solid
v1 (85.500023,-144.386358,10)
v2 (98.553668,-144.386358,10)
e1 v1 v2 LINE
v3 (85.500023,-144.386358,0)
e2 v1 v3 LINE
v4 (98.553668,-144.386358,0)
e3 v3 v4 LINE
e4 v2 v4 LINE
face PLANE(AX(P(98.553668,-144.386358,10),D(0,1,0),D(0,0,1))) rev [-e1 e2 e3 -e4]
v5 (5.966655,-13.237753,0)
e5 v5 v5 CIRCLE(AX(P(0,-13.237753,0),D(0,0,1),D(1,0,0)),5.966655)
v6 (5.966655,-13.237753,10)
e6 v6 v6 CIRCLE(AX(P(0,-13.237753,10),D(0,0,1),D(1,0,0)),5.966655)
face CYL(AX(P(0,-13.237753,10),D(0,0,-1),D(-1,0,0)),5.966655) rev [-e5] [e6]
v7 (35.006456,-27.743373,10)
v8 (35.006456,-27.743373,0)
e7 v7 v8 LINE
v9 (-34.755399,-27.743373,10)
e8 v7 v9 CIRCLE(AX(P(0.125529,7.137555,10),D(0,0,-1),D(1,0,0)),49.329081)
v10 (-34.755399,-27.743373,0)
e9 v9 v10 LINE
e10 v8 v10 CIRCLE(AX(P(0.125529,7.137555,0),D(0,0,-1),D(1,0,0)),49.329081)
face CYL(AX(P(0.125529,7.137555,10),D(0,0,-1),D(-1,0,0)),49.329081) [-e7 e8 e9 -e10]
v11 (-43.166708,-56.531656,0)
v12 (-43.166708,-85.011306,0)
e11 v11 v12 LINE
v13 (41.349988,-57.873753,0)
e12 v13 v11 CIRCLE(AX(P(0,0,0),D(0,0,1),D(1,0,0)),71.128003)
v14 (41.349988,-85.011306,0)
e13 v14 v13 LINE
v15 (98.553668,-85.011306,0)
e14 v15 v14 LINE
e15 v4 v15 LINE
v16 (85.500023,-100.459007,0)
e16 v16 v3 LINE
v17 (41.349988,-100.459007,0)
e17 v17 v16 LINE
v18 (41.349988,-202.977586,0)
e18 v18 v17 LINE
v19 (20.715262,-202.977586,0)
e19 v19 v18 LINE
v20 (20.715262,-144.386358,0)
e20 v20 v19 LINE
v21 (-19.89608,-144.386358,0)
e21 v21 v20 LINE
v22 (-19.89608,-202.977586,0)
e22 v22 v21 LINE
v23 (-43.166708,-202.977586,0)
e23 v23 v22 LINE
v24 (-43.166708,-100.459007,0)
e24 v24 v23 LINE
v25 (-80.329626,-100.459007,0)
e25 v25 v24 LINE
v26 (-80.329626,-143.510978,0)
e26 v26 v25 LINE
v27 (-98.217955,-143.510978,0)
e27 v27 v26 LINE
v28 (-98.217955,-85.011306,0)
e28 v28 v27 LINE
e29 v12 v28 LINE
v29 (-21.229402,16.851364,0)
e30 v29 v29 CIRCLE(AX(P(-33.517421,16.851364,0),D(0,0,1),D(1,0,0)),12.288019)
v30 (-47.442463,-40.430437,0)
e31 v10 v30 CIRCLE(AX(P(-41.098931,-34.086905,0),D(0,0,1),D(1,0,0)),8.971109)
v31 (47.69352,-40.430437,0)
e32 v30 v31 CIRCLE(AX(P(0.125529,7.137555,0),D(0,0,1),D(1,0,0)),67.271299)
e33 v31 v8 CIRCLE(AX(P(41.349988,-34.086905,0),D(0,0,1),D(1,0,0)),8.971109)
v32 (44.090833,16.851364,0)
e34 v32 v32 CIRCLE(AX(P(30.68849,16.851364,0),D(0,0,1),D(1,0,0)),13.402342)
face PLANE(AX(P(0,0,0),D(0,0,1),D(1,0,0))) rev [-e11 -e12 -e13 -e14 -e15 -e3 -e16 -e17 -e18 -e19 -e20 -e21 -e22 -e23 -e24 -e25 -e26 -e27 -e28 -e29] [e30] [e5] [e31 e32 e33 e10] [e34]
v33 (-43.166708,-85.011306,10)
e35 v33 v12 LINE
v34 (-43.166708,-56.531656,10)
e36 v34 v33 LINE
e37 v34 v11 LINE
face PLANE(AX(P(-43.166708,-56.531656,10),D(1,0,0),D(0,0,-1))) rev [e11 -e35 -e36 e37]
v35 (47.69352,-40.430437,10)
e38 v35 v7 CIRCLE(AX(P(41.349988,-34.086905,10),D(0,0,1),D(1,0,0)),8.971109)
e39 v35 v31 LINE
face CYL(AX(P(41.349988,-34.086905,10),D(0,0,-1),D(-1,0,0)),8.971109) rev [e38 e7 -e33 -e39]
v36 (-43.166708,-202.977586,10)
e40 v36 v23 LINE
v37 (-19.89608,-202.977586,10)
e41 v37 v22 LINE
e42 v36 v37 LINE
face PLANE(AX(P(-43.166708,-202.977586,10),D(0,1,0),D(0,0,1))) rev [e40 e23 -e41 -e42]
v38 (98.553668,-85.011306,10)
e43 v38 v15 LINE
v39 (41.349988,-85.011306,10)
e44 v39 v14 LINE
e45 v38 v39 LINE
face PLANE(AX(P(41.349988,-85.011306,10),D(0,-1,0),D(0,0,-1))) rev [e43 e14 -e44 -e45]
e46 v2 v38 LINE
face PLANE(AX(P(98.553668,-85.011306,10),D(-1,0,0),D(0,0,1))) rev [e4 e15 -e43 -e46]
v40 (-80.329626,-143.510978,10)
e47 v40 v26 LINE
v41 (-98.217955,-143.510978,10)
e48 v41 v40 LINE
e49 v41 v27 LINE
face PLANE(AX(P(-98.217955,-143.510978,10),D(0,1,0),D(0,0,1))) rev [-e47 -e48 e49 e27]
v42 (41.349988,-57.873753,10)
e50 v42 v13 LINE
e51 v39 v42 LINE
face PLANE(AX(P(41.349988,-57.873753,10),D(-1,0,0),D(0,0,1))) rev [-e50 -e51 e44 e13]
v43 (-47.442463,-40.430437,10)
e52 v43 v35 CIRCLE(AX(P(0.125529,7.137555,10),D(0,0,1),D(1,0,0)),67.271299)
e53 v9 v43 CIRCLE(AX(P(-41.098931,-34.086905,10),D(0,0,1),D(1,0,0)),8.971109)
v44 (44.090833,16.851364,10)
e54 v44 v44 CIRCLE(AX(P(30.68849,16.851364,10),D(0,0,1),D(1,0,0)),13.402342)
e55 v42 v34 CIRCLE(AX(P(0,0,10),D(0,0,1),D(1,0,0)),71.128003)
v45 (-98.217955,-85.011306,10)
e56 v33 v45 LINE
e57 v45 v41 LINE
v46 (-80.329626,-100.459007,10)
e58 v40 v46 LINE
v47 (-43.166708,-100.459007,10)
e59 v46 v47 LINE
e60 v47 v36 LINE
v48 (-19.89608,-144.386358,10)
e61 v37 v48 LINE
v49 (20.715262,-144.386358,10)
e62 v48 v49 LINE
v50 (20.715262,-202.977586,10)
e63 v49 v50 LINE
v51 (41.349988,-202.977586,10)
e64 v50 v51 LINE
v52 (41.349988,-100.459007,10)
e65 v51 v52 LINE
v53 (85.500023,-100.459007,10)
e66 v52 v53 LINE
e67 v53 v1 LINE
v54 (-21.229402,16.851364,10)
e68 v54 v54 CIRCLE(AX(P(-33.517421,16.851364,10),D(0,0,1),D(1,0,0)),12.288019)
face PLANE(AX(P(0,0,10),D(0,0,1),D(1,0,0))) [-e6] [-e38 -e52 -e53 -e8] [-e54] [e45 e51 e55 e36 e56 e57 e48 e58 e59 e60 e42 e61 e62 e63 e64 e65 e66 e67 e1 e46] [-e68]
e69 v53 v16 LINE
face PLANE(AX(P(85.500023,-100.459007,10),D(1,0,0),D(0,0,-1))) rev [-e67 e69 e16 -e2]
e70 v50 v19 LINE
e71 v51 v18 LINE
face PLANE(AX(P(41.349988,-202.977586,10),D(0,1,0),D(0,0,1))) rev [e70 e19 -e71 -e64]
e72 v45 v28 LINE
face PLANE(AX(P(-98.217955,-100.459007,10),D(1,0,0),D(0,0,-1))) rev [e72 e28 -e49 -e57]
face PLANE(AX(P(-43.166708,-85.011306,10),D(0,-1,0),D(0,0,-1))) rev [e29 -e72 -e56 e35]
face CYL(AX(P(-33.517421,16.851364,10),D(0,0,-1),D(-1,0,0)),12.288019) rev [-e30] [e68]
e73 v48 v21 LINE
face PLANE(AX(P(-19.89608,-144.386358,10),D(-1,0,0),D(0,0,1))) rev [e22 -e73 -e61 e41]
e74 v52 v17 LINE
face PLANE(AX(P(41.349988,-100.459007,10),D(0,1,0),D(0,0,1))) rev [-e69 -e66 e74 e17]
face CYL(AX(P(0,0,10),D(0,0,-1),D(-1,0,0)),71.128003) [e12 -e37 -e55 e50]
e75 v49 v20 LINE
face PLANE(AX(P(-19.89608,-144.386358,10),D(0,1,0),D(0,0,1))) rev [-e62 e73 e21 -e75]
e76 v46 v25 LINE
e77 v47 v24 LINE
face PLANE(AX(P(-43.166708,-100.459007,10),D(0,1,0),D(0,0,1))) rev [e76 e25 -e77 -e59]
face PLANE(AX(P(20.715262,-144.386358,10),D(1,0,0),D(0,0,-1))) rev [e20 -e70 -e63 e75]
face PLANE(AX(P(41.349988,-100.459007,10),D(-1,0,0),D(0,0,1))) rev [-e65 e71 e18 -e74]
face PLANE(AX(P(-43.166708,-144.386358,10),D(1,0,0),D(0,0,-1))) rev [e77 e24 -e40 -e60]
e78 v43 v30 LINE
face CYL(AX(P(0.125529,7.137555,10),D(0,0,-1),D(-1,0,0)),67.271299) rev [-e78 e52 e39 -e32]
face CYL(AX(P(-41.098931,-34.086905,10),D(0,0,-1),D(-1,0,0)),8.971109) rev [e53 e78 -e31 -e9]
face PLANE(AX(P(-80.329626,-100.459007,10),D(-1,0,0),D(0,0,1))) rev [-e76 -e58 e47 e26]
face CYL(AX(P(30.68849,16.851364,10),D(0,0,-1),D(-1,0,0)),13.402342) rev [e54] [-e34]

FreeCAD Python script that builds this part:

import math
import FreeCAD as App
import Part
import Sketcher
from FreeCAD import Vector
Q = App.Units.Quantity

doc = App.newDocument("Part")
body = doc.addObject("PartDesign::Body", "Body")

sketch1 = body.newObject("Sketcher::SketchObject", "Sketch")
sketch1.AttachmentSupport = (doc.getObject("XY_Plane"), [""])
sketch1.MapMode = "FlatFace"
sketch1.addGeometry([
    Part.LineSegment(Vector(-43, -100, 0), Vector(-43, -203, 0)),
    Part.LineSegment(Vector(-43, -203, 0), Vector(-20, -203, 0)),
    Part.LineSegment(Vector(-20, -203, 0), Vector(-20, -144, 0)),
    Part.LineSegment(Vector(-20, -144, 0), Vector(21, -144, 0)),
    Part.LineSegment(Vector(21, -144, 0), Vector(21, -203, 0)),
    Part.LineSegment(Vector(21, -203, 0), Vector(41, -203, 0)),
    Part.LineSegment(Vector(41, -203, 0), Vector(41, -100, 0)),
    Part.LineSegment(Vector(41, -100, 0), Vector(86, -100, 0)),
    Part.LineSegment(Vector(86, -100, 0), Vector(86, -144, 0)),
    Part.LineSegment(Vector(86, -144, 0), Vector(99, -144, 0)),
    Part.LineSegment(Vector(99, -144, 0), Vector(99, -85, 0)),
    Part.LineSegment(Vector(99, -85, 0), Vector(41, -85, 0)),
    Part.LineSegment(Vector(41, -85, 0), Vector(41, -58, 0)),
    Part.ArcOfCircle(Part.Circle(Vector(0, 0, 0), Vector(0, 0, 1), 71), math.radians(-54), math.radians(233)),
    Part.LineSegment(Vector(-43, -57, 0), Vector(-43, -85, 0)),
    Part.LineSegment(Vector(-43, -85, 0), Vector(-98, -85, 0)),
    Part.LineSegment(Vector(-98, -85, 0), Vector(-98, -144, 0)),
    Part.LineSegment(Vector(-98, -144, 0), Vector(-80, -144, 0)),
    Part.LineSegment(Vector(-80, -144, 0), Vector(-80, -100, 0)),
    Part.LineSegment(Vector(-80, -100, 0), Vector(-43, -100, 0)),
    Part.ArcOfCircle(Part.Circle(Vector(0, 7, 0), Vector(0, 0, 1), 67), math.radians(-135), math.radians(-45)),
    Part.ArcOfCircle(Part.Circle(Vector(-41, -34, 0), Vector(0, 0, 1), 9), math.radians(45), math.radians(225)),
    Part.ArcOfCircle(Part.Circle(Vector(0, 7, 0), Vector(0, 0, 1), 49), math.radians(-135), math.radians(-45)),
    Part.ArcOfCircle(Part.Circle(Vector(41, -34, 0), Vector(0, 0, 1), 9), math.radians(-45), math.radians(135)),
    Part.Circle(Vector(0, -13, 0), Vector(0, 0, 1), 6),
    Part.Circle(Vector(-34, 17, 0), Vector(0, 0, 1), 12),
    Part.Circle(Vector(31, 17, 0), Vector(0, 0, 1), 13),
], False)
sketch1.addConstraint([
    Sketcher.Constraint("Coincident", 0, 2, 1, 1),
    Sketcher.Constraint("Coincident", 1, 2, 2, 1),
    Sketcher.Constraint("Coincident", 2, 2, 3, 1),
    Sketcher.Constraint("Coincident", 3, 2, 4, 1),
    Sketcher.Constraint("Coincident", 4, 2, 5, 1),
    Sketcher.Constraint("Coincident", 5, 2, 6, 1),
    Sketcher.Constraint("Coincident", 6, 2, 7, 1),
    Sketcher.Constraint("Coincident", 7, 2, 8, 1),
    Sketcher.Constraint("Coincident", 8, 2, 9, 1),
    Sketcher.Constraint("Coincident", 9, 2, 10, 1),
    Sketcher.Constraint("Coincident", 10, 2, 11, 1),
    Sketcher.Constraint("Coincident", 11, 2, 12, 1),
    Sketcher.Constraint("Coincident", 12, 2, 13, 1),
    Sketcher.Constraint("Coincident", 13, 2, 14, 1),
    Sketcher.Constraint("Coincident", 14, 2, 15, 1),
    Sketcher.Constraint("Coincident", 15, 2, 16, 1),
    Sketcher.Constraint("Coincident", 16, 2, 17, 1),
    Sketcher.Constraint("Coincident", 17, 2, 18, 1),
    Sketcher.Constraint("Coincident", 18, 2, 19, 1),
    Sketcher.Constraint("Coincident", 19, 2, 0, 1),
    Sketcher.Constraint("Tangent", 20, 1, 21, 2),
    Sketcher.Constraint("Tangent", 21, 1, 22, 1),
    Sketcher.Constraint("Tangent", 22, 2, 23, 2),
    Sketcher.Constraint("Tangent", 23, 1, 20, 2),
    Sketcher.Constraint("Vertical", 0),
    Sketcher.Constraint("Horizontal", 1),
    Sketcher.Constraint("Vertical", 2),
    Sketcher.Constraint("Horizontal", 3),
    Sketcher.Constraint("Vertical", 4),
    Sketcher.Constraint("Horizontal", 5),
    Sketcher.Constraint("Vertical", 6),
    Sketcher.Constraint("Horizontal", 7),
    Sketcher.Constraint("Vertical", 8),
    Sketcher.Constraint("Horizontal", 9),
    Sketcher.Constraint("Vertical", 10),
    Sketcher.Constraint("Horizontal", 11),
    Sketcher.Constraint("Vertical", 12),
    Sketcher.Constraint("Vertical", 14),
    Sketcher.Constraint("Horizontal", 15),
    Sketcher.Constraint("Vertical", 16),
    Sketcher.Constraint("Horizontal", 17),
    Sketcher.Constraint("Vertical", 18),
    Sketcher.Constraint("Horizontal", 19),
    Sketcher.Constraint("Coincident", 13, 3, -1, 1),
    Sketcher.Constraint("Coincident", 22, 3, 20, 3),
    Sketcher.Constraint("PointOnObject", 24, 3, -2),
    Sketcher.Constraint("Horizontal", 21, 3, 23, 3),
    Sketcher.Constraint("Horizontal", 25, 3, 26, 3),
    Sketcher.Constraint("Horizontal", 1, 2, 4, 2),
    Sketcher.Constraint("Horizontal", 3, 2, 8, 2),
    Sketcher.Constraint("Horizontal", 11, 2, 14, 2),
    Sketcher.Constraint("Horizontal", 7, 2, 18, 2),
    Sketcher.Constraint("Vertical", 23, 3, 5, 2),
    Sketcher.Constraint("Vertical", 6, 2, 11, 2),
    Sketcher.Constraint("Vertical", 0, 2, 13, 2),
    Sketcher.Constraint("Radius", 20, Q("67.271299 mm")),
    Sketcher.Constraint("Diameter", 24, Q("11.93331 mm")),
    Sketcher.Constraint("Radius", 21, Q("8.971109 mm")),
    Sketcher.Constraint("Diameter", 25, Q("24.576037 mm")),
    Sketcher.Constraint("Diameter", 26, Q("26.804685 mm")),
    Sketcher.Constraint("Radius", 13, Q("71.128003 mm")),
    Sketcher.Constraint("DistanceY", 12, 2, 24, 3, Q("44.636 mm")),
    Sketcher.Constraint("DistanceX", 11, 2, 11, 1, Q("57.20368 mm")),
    Sketcher.Constraint("DistanceX", 17, 1, 17, 2, Q("17.888329 mm")),
    Sketcher.Constraint("DistanceY", 0, 2, 0, 1, Q("102.51858 mm")),
    Sketcher.Constraint("DistanceY", 2, 1, 2, 2, Q("58.591229 mm")),
    Sketcher.Constraint("DistanceY", 10, 1, 10, 2, Q("59.375052 mm")),
    Sketcher.Constraint("DistanceY", 14, 2, 14, 1, Q("28.479651 mm")),
    Sketcher.Constraint("DistanceY", 16, 2, 16, 1, Q("58.499672 mm")),
    Sketcher.Constraint("DistanceX", 21, 1, -1, 1, Q("34.755399 mm")),
    Sketcher.Constraint("DistanceX", 26, 3, 23, 3, Q("10.661498 mm")),
    Sketcher.Constraint("DistanceY", 6, 2, 23, 3, Q("66.372102 mm")),
    Sketcher.Constraint("DistanceY", 20, 1, 25, 3, Q("57.281801 mm")),
    Sketcher.Constraint("DistanceX", 1, 1, 1, 2, Q("23.270628 mm")),
    Sketcher.Constraint("DistanceX", 3, 1, 3, 2, Q("40.611342 mm")),
    Sketcher.Constraint("DistanceX", 5, 1, 5, 2, Q("20.634726 mm")),
    Sketcher.Constraint("DistanceX", 7, 1, 7, 2, Q("44.150034 mm")),
    Sketcher.Constraint("DistanceX", 15, 2, 15, 1, Q("55.051247 mm")),
    Sketcher.Constraint("DistanceY", 12, 1, 12, 2, Q("27.137553 mm")),
    Sketcher.Constraint("DistanceX", 25, 3, -1, 1, Q("33.517421 mm")),
])
pad1 = body.newObject("PartDesign::Pad", "Pad")
pad1.Profile = sketch1
pad1.Length = 10

doc.recompute()
